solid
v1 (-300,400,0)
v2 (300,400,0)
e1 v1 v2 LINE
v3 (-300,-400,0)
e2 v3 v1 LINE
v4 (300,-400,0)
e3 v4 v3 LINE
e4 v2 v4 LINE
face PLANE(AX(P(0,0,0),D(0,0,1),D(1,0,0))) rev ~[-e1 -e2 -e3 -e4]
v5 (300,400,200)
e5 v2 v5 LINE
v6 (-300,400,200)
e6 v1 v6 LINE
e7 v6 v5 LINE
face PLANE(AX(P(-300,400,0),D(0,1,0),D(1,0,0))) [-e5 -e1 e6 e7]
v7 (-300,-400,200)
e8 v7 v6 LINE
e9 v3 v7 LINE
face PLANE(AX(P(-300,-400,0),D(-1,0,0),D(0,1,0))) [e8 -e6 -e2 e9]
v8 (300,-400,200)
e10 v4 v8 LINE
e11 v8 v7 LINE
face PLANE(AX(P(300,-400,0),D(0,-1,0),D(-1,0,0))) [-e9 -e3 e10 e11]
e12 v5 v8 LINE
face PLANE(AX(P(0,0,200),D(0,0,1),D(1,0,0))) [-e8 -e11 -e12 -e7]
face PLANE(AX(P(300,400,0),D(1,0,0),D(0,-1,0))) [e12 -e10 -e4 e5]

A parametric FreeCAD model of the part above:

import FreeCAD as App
import Part
import Sketcher
from FreeCAD import Vector
Q = App.Units.Quantity


def add_polygon(sketch, points):
    """Adds a closed chain of lines whose ends are joined by coincident constraints."""
    first, n = sketch.GeometryCount, len(points)
    for a, b in zip(points, points[1:] + points[:1]):
        sketch.addGeometry(Part.LineSegment(App.Vector(*a, 0), App.Vector(*b, 0)), False)
    for i in range(n):
        sketch.addConstraint(Sketcher.Constraint("Coincident", first + i, 2, first + (i + 1) % n, 1))

doc = App.newDocument("Part")
body = doc.addObject("PartDesign::Body", "Body")

# Sketch on XY plane
sketch1 = body.newObject("Sketcher::SketchObject", "Sketch")
sketch1.AttachmentSupport = (doc.getObject("XY_Plane"), [""])
sketch1.MapMode = "FlatFace"
add_polygon(sketch1, [(300, 400), (-300, 400), (-300, -400), (300, -400)])  # lines 0-3
sketch1.addConstraint(Sketcher.Constraint("Horizontal", 0))
sketch1.addConstraint(Sketcher.Constraint("Vertical", 1))
sketch1.addConstraint(Sketcher.Constraint("Horizontal", 2))
sketch1.addConstraint(Sketcher.Constraint("Vertical", 3))
sketch1.addConstraint(Sketcher.Constraint("Symmetric", 0, 2, 2, 2, -1, 1))
sketch1.addConstraint(Sketcher.Constraint("DistanceX", 0, 2, 0, 1, Q("600 mm")))
sketch1.addConstraint(Sketcher.Constraint("DistanceY", 1, 2, 1, 1, Q("800 mm")))
pad1 = body.newObject("PartDesign::Pad", "Pad")
pad1.Profile = sketch1
pad1.Length = 200

doc.recompute()
